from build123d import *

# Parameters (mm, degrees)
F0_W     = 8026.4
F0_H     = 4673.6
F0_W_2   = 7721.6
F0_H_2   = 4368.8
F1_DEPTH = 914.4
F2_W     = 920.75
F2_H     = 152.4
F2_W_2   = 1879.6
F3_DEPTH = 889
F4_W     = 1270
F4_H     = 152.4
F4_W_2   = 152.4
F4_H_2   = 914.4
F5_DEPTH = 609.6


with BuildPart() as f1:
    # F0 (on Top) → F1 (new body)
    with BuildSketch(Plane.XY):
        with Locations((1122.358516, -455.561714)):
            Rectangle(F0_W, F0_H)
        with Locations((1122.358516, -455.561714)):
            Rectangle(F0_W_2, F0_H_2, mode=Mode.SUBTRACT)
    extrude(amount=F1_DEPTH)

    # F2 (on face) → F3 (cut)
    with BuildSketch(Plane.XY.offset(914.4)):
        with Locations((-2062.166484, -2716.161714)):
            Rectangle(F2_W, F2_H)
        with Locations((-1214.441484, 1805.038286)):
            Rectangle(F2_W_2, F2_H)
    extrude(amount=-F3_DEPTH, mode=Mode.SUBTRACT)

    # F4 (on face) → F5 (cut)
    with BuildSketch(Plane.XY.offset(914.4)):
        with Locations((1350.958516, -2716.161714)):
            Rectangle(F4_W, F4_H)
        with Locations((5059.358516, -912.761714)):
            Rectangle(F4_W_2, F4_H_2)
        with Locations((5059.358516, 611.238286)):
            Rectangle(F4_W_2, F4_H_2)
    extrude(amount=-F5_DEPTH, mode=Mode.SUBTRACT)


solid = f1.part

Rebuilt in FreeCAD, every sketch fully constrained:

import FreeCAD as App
import Part
import Sketcher
from FreeCAD import Vector
Q = App.Units.Quantity

doc = App.newDocument("Part")
params = doc.addObject("Spreadsheet::Sheet", "Params")
for row, (alias, value) in enumerate([
    ("sketch1_width", "316 in"),
    ("sketch1_width2", "304 in"),
    ("sketch1_height", "184 in"),
    ("sketch1_height2", "172 in"),
    ("pad1_length", "36 in"),
    ("sketch2_width", "74 in"),
    ("sketch2_height", "6 in"),
    ("sketch2_width2", "36.25 in"),
    ("pocket1_length", "35 in"),
    ("sketch3_width", "50 in"),
    ("sketch3_width2", "6 in"),
    ("sketch3_height", "36 in"),
    ("pocket2_length", "24 in"),
], start=1):
    params.set(f"A{row}", alias)
    params.set(f"B{row}", "=" + value)
    params.setAlias(f"B{row}", alias)

body = doc.addObject("PartDesign::Body", "Body")

# Sketch on XY plane
sketch1 = body.newObject("Sketcher::SketchObject", "Sketch")
sketch1.AttachmentSupport = (doc.getObject("XY_Plane"), [""])
sketch1.MapMode = "FlatFace"
sketch1.addGeometry([
    Part.LineSegment(Vector(-2890.841484, 1881.238286, 0), Vector(-2890.841484, -2792.361714, 0)),  # 0
    Part.LineSegment(Vector(-2890.841484, -2792.361714, 0), Vector(5135.558516, -2792.361714, 0)),  # 1
    Part.LineSegment(Vector(5135.558516, -2792.361714, 0), Vector(5135.558516, 1881.238286, 0)),  # 2
    Part.LineSegment(Vector(5135.558516, 1881.238286, 0), Vector(-2890.841484, 1881.238286, 0)),  # 3
    Part.LineSegment(Vector(4983.158516, -2639.961714, 0), Vector(-2738.441484, -2639.961714, 0)),  # 4
    Part.LineSegment(Vector(-2738.441484, -2639.961714, 0), Vector(-2738.441484, 1728.838286, 0)),  # 5
    Part.LineSegment(Vector(-2738.441484, 1728.838286, 0), Vector(4983.158516, 1728.838286, 0)),  # 6
    Part.LineSegment(Vector(4983.158516, 1728.838286, 0), Vector(4983.158516, -2639.961714, 0)),  # 7
], False)
sketch1.addConstraint([
    Sketcher.Constraint("Coincident", 0, 2, 1, 1),
    Sketcher.Constraint("Coincident", 1, 2, 2, 1),
    Sketcher.Constraint("Coincident", 2, 2, 3, 1),
    Sketcher.Constraint("Coincident", 3, 2, 0, 1),
    Sketcher.Constraint("Coincident", 4, 2, 5, 1),
    Sketcher.Constraint("Coincident", 5, 2, 6, 1),
    Sketcher.Constraint("Coincident", 6, 2, 7, 1),
    Sketcher.Constraint("Coincident", 7, 2, 4, 1),
    Sketcher.Constraint("Vertical", 0),
    Sketcher.Constraint("Horizontal", 1),
    Sketcher.Constraint("Vertical", 2),
    Sketcher.Constraint("Horizontal", 3),
    Sketcher.Constraint("Horizontal", 4),
    Sketcher.Constraint("Vertical", 5),
    Sketcher.Constraint("Horizontal", 6),
    Sketcher.Constraint("Vertical", 7),
    Sketcher.Constraint("DistanceX", 1, 1, 1, 2, Q("316 in")),
    Sketcher.Constraint("DistanceX", 4, 2, 4, 1, Q("304 in")),
    Sketcher.Constraint("DistanceY", 0, 2, 0, 1, Q("184 in")),
    Sketcher.Constraint("DistanceY", 5, 1, 5, 2, Q("172 in")),
    Sketcher.Constraint("DistanceX", 0, 2, 4, 2, Q("6 in")),
    Sketcher.Constraint("DistanceY", 0, 2, 4, 2, Q("6 in")),
    Sketcher.Constraint("DistanceX", 0, 2, -1, 1, 2890.841484),
    Sketcher.Constraint("DistanceY", 0, 2, -1, 1, 2792.361714),
])
sketch1.setExpression("Constraints[16]", "Params.sketch1_width")
sketch1.setExpression("Constraints[17]", "Params.sketch1_width2")
sketch1.setExpression("Constraints[18]", "Params.sketch1_height")
sketch1.setExpression("Constraints[19]", "Params.sketch1_height2")
pad1 = body.newObject("PartDesign::Pad", "Pad")
pad1.Profile = sketch1
pad1.setExpression("Length", "Params.pad1_length")

# Sketch on XY plane
sketch2 = body.newObject("Sketcher::SketchObject", "Sketch001")
sketch2.AttachmentSupport = (doc.getObject("XY_Plane"), [""])
sketch2.MapMode = "FlatFace"
sketch2.AttachmentOffset = App.Placement(Vector(0, 0, 36 * 25.4), App.Rotation())
sketch2.addGeometry([
    Part.LineSegment(Vector(-2522.541484, -2639.961714, 0), Vector(-2522.541484, -2792.361714, 0)),  # 0
    Part.LineSegment(Vector(-2522.541484, -2792.361714, 0), Vector(-1601.791484, -2792.361714, 0)),  # 1
    Part.LineSegment(Vector(-1601.791484, -2792.361714, 0), Vector(-1601.791484, -2639.961714, 0)),  # 2
    Part.LineSegment(Vector(-1601.791484, -2639.961714, 0), Vector(-2522.541484, -2639.961714, 0)),  # 3
    Part.LineSegment(Vector(-2154.241484, 1881.238286, 0), Vector(-2154.241484, 1728.838286, 0)),  # 4
    Part.LineSegment(Vector(-2154.241484, 1728.838286, 0), Vector(-274.641484, 1728.838286, 0)),  # 5
    Part.LineSegment(Vector(-274.641484, 1728.838286, 0), Vector(-274.641484, 1881.238286, 0)),  # 6
    Part.LineSegment(Vector(-274.641484, 1881.238286, 0), Vector(-2154.241484, 1881.238286, 0)),  # 7
], False)
sketch2.addConstraint([
    Sketcher.Constraint("Coincident", 0, 2, 1, 1),
    Sketcher.Constraint("Coincident", 1, 2, 2, 1),
    Sketcher.Constraint("Coincident", 2, 2, 3, 1),
    Sketcher.Constraint("Coincident", 3, 2, 0, 1),
    Sketcher.Constraint("Coincident", 4, 2, 5, 1),
    Sketcher.Constraint("Coincident", 5, 2, 6, 1),
    Sketcher.Constraint("Coincident", 6, 2, 7, 1),
    Sketcher.Constraint("Coincident", 7, 2, 4, 1),
    Sketcher.Constraint("Vertical", 0),
    Sketcher.Constraint("Horizontal", 1),
    Sketcher.Constraint("Vertical", 2),
    Sketcher.Constraint("Horizontal", 3),
    Sketcher.Constraint("Vertical", 4),
    Sketcher.Constraint("Horizontal", 5),
    Sketcher.Constraint("Vertical", 6),
    Sketcher.Constraint("Horizontal", 7),
    Sketcher.Constraint("Equal", 2, 4),
    Sketcher.Constraint("DistanceX", 5, 1, 5, 2, Q("74 in")),
    Sketcher.Constraint("DistanceY", 0, 2, 0, 1, Q("6 in")),
    Sketcher.Constraint("DistanceY", 3, 2, 4, 2, Q("172 in")),
    Sketcher.Constraint("DistanceX", 1, 1, 1, 2, Q("36.25 in")),
    Sketcher.Constraint("DistanceX", 3, 2, 4, 2, Q("14.5 in")),
    Sketcher.Constraint("DistanceX", 0, 2, -1, 1, 2522.541484),
    Sketcher.Constraint("DistanceY", 0, 2, -1, 1, 2792.361714),
])
sketch2.setExpression("Constraints[17]", "Params.sketch2_width")
sketch2.setExpression("Constraints[18]", "Params.sketch2_height")
sketch2.setExpression("Constraints[20]", "Params.sketch2_width2")
pocket1 = body.newObject("PartDesign::Pocket", "Pocket")
pocket1.Profile = sketch2
pocket1.setExpression("Length", "Params.pocket1_length")

# Sketch on XY plane
sketch3 = body.newObject("Sketcher::SketchObject", "Sketch002")
sketch3.AttachmentSupport = (doc.getObject("XY_Plane"), [""])
sketch3.MapMode = "FlatFace"
sketch3.AttachmentOffset = App.Placement(Vector(0, 0, 36 * 25.4), App.Rotation())
sketch3.addGeometry([
    Part.LineSegment(Vector(715.958516, -2639.961714, 0), Vector(715.958516, -2792.361714, 0)),  # 0
    Part.LineSegment(Vector(715.958516, -2792.361714, 0), Vector(1985.958516, -2792.361714, 0)),  # 1
    Part.LineSegment(Vector(1985.958516, -2792.361714, 0), Vector(1985.958516, -2639.961714, 0)),  # 2
    Part.LineSegment(Vector(1985.958516, -2639.961714, 0), Vector(715.958516, -2639.961714, 0)),  # 3
    Part.LineSegment(Vector(4983.158516, -455.561714, 0), Vector(4983.158516, -1369.961714, 0)),  # 4
    Part.LineSegment(Vector(4983.158516, -1369.961714, 0), Vector(5135.558516, -1369.961714, 0)),  # 5
    Part.LineSegment(Vector(5135.558516, -1369.961714, 0), Vector(5135.558516, -455.561714, 0)),  # 6
    Part.LineSegment(Vector(5135.558516, -455.561714, 0), Vector(4983.158516, -455.561714, 0)),  # 7
    Part.LineSegment(Vector(4983.158516, 1068.438286, 0), Vector(4983.158516, 154.038286, 0)),  # 8
    Part.LineSegment(Vector(4983.158516, 154.038286, 0), Vector(5135.558516, 154.038286, 0)),  # 9
    Part.LineSegment(Vector(5135.558516, 154.038286, 0), Vector(5135.558516, 1068.438286, 0)),  # 10
    Part.LineSegment(Vector(5135.558516, 1068.438286, 0), Vector(4983.158516, 1068.438286, 0)),  # 11
], False)
sketch3.addConstraint([
    Sketcher.Constraint("Coincident", 0, 2, 1, 1),
    Sketcher.Constraint("Coincident", 1, 2, 2, 1),
    Sketcher.Constraint("Coincident", 2, 2, 3, 1),
    Sketcher.Constraint("Coincident", 3, 2, 0, 1),
    Sketcher.Constraint("Coincident", 4, 2, 5, 1),
    Sketcher.Constraint("Coincident", 5, 2, 6, 1),
    Sketcher.Constraint("Coincident", 6, 2, 7, 1),
    Sketcher.Constraint("Coincident", 7, 2, 4, 1),
    Sketcher.Constraint("Coincident", 8, 2, 9, 1),
    Sketcher.Constraint("Coincident", 9, 2, 10, 1),
    Sketcher.Constraint("Coincident", 10, 2, 11, 1),
    Sketcher.Constraint("Coincident", 11, 2, 8, 1),
    Sketcher.Constraint("Vertical", 0),
    Sketcher.Constraint("Horizontal", 1),
    Sketcher.Constraint("Vertical", 2),
    Sketcher.Constraint("Horizontal", 3),
    Sketcher.Constraint("Vertical", 4),
    Sketcher.Constraint("Horizontal", 5),
    Sketcher.Constraint("Vertical", 6),
    Sketcher.Constraint("Horizontal", 7),
    Sketcher.Constraint("Vertical", 8),
    Sketcher.Constraint("Horizontal", 9),
    Sketcher.Constraint("Vertical", 10),
    Sketcher.Constraint("Horizontal", 11),
    Sketcher.Constraint("Vertical", 7, 2, 8, 2),
    Sketcher.Constraint("Vertical", 6, 2, 9, 2),
    Sketcher.Constraint("Equal", 11, 0),
    Sketcher.Constraint("Equal", 6, 8),
    Sketcher.Constraint("DistanceX", 1, 1, 1, 2, Q("50 in")),
    Sketcher.Constraint("DistanceX", 5, 1, 5, 2, Q("6 in")),
    Sketcher.Constraint("DistanceY", 4, 2, 4, 1, Q("36 in")),
    Sketcher.Constraint("DistanceX", 2, 2, 4, 2, Q("118 in")),
    Sketcher.Constraint("DistanceY", 2, 2, 4, 2, Q("50 in")),
    Sketcher.Constraint("DistanceY", 7, 2, 8, 2, Q("24 in")),
    Sketcher.Constraint("DistanceX", -1, 1, 0, 2, 715.958516),
    Sketcher.Constraint("DistanceY", 0, 2, -1, 1, 2792.361714),
])
sketch3.setExpression("Constraints[28]", "Params.sketch3_width")
sketch3.setExpression("Constraints[29]", "Params.sketch3_width2")
sketch3.setExpression("Constraints[30]", "Params.sketch3_height")
pocket2 = body.newObject("PartDesign::Pocket", "Pocket001")
pocket2.Profile = sketch3
pocket2.setExpression("Length", "Params.pocket2_length")

doc.recompute()
